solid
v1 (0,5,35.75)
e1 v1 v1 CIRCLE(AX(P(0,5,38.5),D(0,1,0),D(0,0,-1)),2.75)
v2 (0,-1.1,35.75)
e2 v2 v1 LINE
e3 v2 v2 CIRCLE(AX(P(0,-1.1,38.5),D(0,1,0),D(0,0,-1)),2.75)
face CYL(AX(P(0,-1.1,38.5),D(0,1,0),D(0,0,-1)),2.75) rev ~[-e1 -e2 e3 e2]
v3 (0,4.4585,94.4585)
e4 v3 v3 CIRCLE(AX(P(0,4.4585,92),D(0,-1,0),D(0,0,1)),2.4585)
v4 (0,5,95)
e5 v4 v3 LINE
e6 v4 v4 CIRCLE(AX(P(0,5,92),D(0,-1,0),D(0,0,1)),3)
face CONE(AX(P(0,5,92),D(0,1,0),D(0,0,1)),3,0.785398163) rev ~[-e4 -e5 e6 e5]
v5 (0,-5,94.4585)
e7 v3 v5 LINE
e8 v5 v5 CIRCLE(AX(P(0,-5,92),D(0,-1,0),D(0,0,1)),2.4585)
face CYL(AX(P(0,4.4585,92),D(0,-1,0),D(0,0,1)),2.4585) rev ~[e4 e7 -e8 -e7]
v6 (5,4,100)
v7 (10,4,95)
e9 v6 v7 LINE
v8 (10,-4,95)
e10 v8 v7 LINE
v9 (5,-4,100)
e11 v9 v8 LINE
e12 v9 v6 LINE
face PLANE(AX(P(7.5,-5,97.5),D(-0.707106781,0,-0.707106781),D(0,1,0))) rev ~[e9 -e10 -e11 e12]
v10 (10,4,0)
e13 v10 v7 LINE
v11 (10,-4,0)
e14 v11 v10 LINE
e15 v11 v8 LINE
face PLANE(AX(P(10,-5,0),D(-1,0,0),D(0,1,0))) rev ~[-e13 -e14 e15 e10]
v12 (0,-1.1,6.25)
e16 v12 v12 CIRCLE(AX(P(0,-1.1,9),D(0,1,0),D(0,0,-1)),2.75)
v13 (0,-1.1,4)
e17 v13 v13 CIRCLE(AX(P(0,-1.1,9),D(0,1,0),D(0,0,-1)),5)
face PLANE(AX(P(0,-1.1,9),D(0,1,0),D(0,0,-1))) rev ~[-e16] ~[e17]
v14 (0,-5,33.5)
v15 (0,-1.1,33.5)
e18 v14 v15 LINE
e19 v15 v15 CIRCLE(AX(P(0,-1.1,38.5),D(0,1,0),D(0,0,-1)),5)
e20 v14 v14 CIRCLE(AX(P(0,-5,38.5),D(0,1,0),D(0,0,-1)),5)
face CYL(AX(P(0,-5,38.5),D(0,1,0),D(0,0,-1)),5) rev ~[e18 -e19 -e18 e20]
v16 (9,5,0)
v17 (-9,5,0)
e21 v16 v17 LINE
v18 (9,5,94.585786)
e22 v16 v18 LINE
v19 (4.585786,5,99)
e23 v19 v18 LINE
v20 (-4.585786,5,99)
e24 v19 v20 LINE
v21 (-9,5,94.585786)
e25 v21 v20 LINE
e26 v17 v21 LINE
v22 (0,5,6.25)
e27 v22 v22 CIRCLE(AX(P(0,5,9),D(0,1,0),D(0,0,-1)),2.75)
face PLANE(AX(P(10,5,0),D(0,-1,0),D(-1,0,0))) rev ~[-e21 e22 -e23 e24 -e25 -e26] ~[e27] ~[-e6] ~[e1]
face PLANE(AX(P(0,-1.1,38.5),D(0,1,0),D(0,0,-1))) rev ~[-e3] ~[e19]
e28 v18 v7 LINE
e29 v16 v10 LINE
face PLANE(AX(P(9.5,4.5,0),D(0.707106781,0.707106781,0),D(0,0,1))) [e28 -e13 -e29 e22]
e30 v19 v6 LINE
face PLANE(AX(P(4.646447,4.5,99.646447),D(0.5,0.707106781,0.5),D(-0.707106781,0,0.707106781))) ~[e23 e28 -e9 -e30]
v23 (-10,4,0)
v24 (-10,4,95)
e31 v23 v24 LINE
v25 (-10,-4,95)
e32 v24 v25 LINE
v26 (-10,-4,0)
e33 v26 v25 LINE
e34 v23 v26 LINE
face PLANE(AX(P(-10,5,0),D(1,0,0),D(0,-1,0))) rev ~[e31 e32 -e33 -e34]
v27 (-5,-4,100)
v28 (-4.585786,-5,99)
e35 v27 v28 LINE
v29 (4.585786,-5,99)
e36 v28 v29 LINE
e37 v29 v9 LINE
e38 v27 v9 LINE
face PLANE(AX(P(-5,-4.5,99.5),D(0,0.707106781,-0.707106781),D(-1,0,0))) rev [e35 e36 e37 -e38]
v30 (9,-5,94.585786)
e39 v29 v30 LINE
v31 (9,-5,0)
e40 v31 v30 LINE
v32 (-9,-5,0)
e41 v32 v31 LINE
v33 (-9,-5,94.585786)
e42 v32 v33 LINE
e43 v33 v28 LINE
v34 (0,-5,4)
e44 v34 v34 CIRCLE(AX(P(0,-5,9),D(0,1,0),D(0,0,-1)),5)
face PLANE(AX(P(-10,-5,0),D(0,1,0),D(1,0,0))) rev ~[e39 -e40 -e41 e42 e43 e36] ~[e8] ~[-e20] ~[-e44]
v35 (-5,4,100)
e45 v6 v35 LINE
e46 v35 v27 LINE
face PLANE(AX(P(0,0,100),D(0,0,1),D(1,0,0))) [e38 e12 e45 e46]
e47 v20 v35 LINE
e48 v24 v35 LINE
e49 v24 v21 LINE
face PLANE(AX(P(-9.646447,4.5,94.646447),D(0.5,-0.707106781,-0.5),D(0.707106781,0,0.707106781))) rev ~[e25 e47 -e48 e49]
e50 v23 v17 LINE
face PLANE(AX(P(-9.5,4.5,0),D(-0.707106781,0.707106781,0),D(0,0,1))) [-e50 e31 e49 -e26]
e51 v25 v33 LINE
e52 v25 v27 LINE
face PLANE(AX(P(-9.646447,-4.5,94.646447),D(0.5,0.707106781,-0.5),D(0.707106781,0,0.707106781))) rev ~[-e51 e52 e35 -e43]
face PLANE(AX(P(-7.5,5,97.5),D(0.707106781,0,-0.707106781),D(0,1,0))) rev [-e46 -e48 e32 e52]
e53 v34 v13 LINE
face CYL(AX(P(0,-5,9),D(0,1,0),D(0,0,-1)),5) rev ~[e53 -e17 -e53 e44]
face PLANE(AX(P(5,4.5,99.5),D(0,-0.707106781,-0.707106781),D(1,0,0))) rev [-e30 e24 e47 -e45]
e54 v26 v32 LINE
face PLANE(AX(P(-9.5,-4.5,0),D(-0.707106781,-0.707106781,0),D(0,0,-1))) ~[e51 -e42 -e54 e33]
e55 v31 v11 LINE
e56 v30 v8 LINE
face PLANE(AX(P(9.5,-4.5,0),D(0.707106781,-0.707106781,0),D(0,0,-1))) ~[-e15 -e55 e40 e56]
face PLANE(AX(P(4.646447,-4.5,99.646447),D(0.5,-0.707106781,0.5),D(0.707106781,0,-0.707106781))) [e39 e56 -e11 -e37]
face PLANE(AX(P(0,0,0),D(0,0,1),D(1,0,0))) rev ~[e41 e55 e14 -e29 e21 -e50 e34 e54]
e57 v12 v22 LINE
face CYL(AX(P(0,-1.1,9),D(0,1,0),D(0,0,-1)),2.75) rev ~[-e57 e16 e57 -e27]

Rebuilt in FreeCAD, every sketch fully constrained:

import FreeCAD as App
import Part
import Sketcher
Q = App.Units.Quantity


def edges_at(feature, points):
    """Names of the edges that pass closest to the given points."""
    edges = feature.Shape.Edges
    near = lambda p: min(range(len(edges)), key=lambda i: edges[i].distToShape(Part.Vertex(*p))[0])
    return sorted({f"Edge{near(p) + 1}" for p in points})


def add_polygon(sketch, points):
    """Adds a closed chain of lines whose ends are joined by coincident constraints."""
    first, n = sketch.GeometryCount, len(points)
    for a, b in zip(points, points[1:] + points[:1]):
        sketch.addGeometry(Part.LineSegment(App.Vector(*a, 0), App.Vector(*b, 0)), False)
    for i in range(n):
        sketch.addConstraint(Sketcher.Constraint("Coincident", first + i, 2, first + (i + 1) % n, 1))

doc = App.newDocument("Part")
body = doc.addObject("PartDesign::Body", "Body")

# Sketch on XY plane
sketch1 = doc.addObject("Sketcher::SketchObject", "Sketch")
body.addObject(sketch1)
sketch1.AttachmentSupport = (doc.XY_Plane, [""])
sketch1.MapMode = "FlatFace"
add_polygon(sketch1, [(-10, 5), (-10, -5), (10, -5), (10, 5)])  # lines 0-3
sketch1.addConstraint([
    Sketcher.Constraint("Vertical", 0),
    Sketcher.Constraint("Horizontal", 1),
    Sketcher.Constraint("Vertical", 2),
    Sketcher.Constraint("Horizontal", 3),
    Sketcher.Constraint("Symmetric", 0, 2, 2, 2, -1, 1),
    Sketcher.Constraint("DistanceX", 1, 1, 1, 2, Q("20 mm")),
    Sketcher.Constraint("DistanceY", 0, 2, 0, 1, Q("10 mm")),
])
pad1 = doc.addObject("PartDesign::Pad", "Pad")
body.addObject(pad1)
pad1.Profile = sketch1
pad1.Length = 100

# Sketch on XZ plane
sketch2 = doc.addObject("Sketcher::SketchObject", "Sketch001")
body.addObject(sketch2)
sketch2.AttachmentSupport = (doc.XZ_Plane, [""])
sketch2.MapMode = "FlatFace"
sketch2.AttachmentOffset = App.Placement(App.Vector(0, 0, 5), App.Rotation())
sketch2.addGeometry([
    Part.Circle(App.Vector(0, 9, 0), App.Vector(0, 0, 1), 2.8),
    Part.Circle(App.Vector(0, 38.5, 0), App.Vector(0, 0, 1), 2.8),
], False)
sketch2.addConstraint([
    Sketcher.Constraint("Equal", 0, 1),
    Sketcher.Constraint("PointOnObject", 0, 3, -2),
    Sketcher.Constraint("PointOnObject", 1, 3, -2),
    Sketcher.Constraint("Diameter", 0, Q("5.5 mm")),
    Sketcher.Constraint("DistanceY", -1, 1, 0, 3, Q("9 mm")),
    Sketcher.Constraint("DistanceY", -1, 1, 1, 3, Q("38.5 mm")),
])
doc.recompute()
hole = doc.addObject("PartDesign::Hole", "Hole")
body.addObject(hole)
hole.Profile = sketch2
hole.ThreadType = "None"
hole.Diameter = 5.5
hole.DepthType = "ThroughAll"
hole.HoleCutType = "Counterbore"
hole.HoleCutDiameter = 10
hole.HoleCutDepth = 3.9

# Sketch on XZ plane
sketch3 = doc.addObject("Sketcher::SketchObject", "Sketch002")
body.addObject(sketch3)
sketch3.AttachmentSupport = (doc.XZ_Plane, [""])
sketch3.MapMode = "FlatFace"
sketch3.AttachmentOffset = App.Placement(App.Vector(0, 0, -5), App.Rotation())
sketch3.addGeometry(Part.Circle(App.Vector(0, 92, 0), App.Vector(0, 0, 1), 2.5), False)
sketch3.addConstraint([
    Sketcher.Constraint("PointOnObject", 0, 3, -2),
    Sketcher.Constraint("Diameter", 0, Q("4.917 mm")),
    Sketcher.Constraint("DistanceY", -1, 1, 0, 3, Q("92 mm")),
])
doc.recompute()
hole2 = doc.addObject("PartDesign::Hole", "Hole001")
body.addObject(hole2)
hole2.Profile = sketch3
hole2.ThreadType = "None"
hole2.Diameter = 4.917
hole2.DepthType = "ThroughAll"
hole2.HoleCutType = "Countersink"
hole2.HoleCutDiameter = 6
hole2.HoleCutCountersinkAngle = 90
hole2.Reversed = True
doc.recompute()

chamfer = doc.addObject("PartDesign::Chamfer", "Chamfer")
body.addObject(chamfer)
chamfer.Base = (hole2, edges_at(hole2, [(-10, 0, 100), (10, 0, 100)]))
chamfer.Size = 5
doc.recompute()

chamfer2 = doc.addObject("PartDesign::Chamfer", "Chamfer001")
body.addObject(chamfer2)
chamfer2.Base = (chamfer, edges_at(chamfer, [
    (-10, -5, 47.5),
    (-7.5, -5, 97.5),
    (0, -5, 100),
    (7.5, -5, 97.5),
    (10, -5, 47.5),
    (-10, 5, 47.5),
    (-7.5, 5, 97.5),
    (0, 5, 100),
    (7.5, 5, 97.5),
    (10, 5, 47.5),
]))
chamfer2.Size = 1

doc.recompute()
